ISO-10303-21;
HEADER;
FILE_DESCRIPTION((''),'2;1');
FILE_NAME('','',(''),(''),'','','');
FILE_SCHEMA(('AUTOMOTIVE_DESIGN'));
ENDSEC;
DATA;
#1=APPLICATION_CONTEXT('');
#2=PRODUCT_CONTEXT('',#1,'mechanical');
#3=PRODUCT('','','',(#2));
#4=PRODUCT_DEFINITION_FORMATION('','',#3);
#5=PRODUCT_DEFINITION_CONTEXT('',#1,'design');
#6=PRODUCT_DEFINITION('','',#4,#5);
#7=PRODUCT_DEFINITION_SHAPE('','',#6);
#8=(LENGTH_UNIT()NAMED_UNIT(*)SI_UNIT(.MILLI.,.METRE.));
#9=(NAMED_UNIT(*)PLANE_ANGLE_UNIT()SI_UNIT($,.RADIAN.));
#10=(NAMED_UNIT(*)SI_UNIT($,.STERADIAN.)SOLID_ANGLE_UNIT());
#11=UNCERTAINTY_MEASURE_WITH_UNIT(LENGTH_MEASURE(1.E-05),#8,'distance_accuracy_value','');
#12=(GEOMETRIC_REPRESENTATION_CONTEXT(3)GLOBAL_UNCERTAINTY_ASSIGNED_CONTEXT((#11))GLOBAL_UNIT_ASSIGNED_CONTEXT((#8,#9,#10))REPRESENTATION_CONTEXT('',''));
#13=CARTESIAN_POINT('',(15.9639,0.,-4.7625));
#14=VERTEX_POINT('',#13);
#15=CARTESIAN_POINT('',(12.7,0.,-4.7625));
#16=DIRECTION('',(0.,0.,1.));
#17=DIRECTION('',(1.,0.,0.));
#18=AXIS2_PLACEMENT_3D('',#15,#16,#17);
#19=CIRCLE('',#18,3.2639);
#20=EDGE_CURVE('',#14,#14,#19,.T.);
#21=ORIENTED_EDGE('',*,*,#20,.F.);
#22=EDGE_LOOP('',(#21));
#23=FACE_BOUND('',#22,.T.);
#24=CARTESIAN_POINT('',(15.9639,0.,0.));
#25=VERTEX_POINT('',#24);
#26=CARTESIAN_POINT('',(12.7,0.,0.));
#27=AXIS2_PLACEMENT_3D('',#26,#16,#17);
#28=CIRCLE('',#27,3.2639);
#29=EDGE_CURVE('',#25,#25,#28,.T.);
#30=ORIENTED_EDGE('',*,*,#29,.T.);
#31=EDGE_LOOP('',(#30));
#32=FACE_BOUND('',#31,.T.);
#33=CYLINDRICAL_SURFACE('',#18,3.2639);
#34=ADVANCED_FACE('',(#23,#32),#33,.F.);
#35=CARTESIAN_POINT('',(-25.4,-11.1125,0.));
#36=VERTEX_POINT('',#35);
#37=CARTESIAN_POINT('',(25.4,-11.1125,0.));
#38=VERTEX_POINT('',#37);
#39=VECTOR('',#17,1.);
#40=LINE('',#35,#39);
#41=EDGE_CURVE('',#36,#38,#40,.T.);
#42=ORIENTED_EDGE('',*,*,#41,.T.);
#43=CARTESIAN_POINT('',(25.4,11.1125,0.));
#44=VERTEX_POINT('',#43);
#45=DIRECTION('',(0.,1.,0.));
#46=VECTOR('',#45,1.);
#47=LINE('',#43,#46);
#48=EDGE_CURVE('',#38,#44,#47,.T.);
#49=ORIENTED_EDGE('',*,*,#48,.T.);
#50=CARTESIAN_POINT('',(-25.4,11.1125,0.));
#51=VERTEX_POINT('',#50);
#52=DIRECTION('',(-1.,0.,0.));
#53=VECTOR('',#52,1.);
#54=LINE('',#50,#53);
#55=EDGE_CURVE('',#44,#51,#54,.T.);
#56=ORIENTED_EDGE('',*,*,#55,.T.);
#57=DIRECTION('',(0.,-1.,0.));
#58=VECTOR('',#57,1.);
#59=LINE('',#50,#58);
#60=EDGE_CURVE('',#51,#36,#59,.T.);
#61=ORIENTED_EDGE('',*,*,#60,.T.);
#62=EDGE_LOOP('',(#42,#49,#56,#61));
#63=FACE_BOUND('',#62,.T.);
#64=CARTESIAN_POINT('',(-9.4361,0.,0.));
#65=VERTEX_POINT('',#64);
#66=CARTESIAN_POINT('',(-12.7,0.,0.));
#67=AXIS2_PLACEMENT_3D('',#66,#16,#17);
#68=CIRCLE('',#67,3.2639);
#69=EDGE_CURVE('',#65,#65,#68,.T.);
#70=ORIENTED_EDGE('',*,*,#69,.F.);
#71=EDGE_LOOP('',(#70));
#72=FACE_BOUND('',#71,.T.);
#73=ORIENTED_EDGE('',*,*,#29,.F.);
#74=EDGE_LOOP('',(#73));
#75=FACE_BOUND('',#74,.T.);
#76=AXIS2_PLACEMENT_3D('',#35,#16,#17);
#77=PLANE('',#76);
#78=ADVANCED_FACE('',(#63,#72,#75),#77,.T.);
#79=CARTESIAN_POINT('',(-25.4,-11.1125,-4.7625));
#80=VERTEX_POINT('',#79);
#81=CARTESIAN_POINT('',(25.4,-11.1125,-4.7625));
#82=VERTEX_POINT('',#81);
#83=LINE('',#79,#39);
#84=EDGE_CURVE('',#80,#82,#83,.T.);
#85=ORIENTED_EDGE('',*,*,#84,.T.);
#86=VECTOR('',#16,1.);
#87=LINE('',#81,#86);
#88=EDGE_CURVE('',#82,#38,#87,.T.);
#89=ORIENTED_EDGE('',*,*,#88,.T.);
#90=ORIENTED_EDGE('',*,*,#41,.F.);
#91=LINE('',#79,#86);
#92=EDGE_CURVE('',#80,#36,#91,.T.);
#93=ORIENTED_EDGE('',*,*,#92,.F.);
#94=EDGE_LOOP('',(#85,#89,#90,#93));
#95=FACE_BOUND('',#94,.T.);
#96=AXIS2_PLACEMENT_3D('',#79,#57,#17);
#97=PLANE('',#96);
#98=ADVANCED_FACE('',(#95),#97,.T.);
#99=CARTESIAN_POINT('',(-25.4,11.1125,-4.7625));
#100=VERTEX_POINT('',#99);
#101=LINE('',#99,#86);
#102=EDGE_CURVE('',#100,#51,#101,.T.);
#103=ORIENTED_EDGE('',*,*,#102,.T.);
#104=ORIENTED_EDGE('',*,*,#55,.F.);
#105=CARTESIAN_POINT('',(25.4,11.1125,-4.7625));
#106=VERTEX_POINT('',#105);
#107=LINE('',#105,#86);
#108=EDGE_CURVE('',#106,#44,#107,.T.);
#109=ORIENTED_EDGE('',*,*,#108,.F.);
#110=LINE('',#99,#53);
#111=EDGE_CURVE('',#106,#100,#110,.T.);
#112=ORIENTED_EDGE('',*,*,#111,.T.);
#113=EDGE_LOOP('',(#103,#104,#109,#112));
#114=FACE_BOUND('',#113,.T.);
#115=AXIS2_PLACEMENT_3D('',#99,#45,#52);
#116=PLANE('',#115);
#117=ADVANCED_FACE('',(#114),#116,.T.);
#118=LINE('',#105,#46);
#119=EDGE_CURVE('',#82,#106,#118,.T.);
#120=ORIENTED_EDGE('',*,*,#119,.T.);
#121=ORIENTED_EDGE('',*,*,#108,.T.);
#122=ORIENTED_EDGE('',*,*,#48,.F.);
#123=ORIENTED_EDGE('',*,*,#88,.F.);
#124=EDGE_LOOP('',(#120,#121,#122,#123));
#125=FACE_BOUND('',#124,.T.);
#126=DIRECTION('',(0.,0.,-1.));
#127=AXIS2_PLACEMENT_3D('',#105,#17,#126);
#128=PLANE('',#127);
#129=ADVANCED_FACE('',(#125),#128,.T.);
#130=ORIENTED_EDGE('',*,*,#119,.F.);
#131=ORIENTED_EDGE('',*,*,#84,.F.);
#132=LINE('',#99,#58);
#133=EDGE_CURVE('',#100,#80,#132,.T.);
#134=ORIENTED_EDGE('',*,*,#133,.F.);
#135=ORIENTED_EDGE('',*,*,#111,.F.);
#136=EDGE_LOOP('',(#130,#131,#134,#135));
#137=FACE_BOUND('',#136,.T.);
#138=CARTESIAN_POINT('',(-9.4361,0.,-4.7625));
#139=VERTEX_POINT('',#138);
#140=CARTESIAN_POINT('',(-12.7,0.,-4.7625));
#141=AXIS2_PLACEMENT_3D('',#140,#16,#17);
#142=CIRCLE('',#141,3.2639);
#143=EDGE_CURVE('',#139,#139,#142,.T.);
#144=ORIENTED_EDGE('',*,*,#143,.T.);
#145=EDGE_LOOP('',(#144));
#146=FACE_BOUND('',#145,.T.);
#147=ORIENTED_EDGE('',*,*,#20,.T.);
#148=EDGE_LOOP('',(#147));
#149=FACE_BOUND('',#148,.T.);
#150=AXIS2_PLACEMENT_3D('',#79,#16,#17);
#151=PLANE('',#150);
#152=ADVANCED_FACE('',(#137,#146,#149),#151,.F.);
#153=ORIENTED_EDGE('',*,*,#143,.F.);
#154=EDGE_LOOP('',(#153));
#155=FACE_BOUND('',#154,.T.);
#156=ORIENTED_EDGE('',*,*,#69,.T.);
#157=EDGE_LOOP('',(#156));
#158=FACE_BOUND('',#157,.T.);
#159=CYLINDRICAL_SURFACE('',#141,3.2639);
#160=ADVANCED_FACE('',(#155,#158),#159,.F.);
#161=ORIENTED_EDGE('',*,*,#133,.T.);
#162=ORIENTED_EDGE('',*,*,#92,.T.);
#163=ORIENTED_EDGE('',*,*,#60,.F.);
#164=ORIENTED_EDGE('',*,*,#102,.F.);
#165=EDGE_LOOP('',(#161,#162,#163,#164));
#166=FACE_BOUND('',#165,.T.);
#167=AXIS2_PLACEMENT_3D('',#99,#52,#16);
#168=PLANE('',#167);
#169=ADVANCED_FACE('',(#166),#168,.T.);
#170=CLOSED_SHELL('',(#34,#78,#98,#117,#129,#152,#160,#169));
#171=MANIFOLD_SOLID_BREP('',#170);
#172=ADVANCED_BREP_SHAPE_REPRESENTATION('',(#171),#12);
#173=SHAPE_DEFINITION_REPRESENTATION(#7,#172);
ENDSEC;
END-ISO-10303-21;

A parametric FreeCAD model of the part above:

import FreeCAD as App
import Part
import Sketcher
from FreeCAD import Vector
Q = App.Units.Quantity


def add_polygon(sketch, points):
    """Adds a closed chain of lines whose ends are joined by coincident constraints."""
    first, n = sketch.GeometryCount, len(points)
    for a, b in zip(points, points[1:] + points[:1]):
        sketch.addGeometry(Part.LineSegment(App.Vector(*a, 0), App.Vector(*b, 0)), False)
    for i in range(n):
        sketch.addConstraint(Sketcher.Constraint("Coincident", first + i, 2, first + (i + 1) % n, 1))

doc = App.newDocument("Part")
body = doc.addObject("PartDesign::Body", "Body")

sketch1 = doc.addObject("Sketcher::SketchObject", "Sketch")
body.addObject(sketch1)
sketch1.AttachmentSupport = (doc.XY_Plane, [""])
sketch1.MapMode = "FlatFace"
add_polygon(sketch1, [(-25.4, 11.1), (-25.4, -11.1), (25.4, -11.1), (25.4, 11.1)])
sketch1.addGeometry(Part.Circle(Vector(-12.7, 0, 0), Vector(0, 0, 1), 3.3), False)
sketch1.addGeometry(Part.Circle(Vector(12.7, 0, 0), Vector(0, 0, 1), 3.3), False)
sketch1.addConstraint(Sketcher.Constraint("Vertical", 0))
sketch1.addConstraint(Sketcher.Constraint("Horizontal", 1))
sketch1.addConstraint(Sketcher.Constraint("Vertical", 2))
sketch1.addConstraint(Sketcher.Constraint("Horizontal", 3))
sketch1.addConstraint(Sketcher.Constraint("Equal", 4, 5))
sketch1.addConstraint(Sketcher.Constraint("Symmetric", 4, 3, 5, 3, -1, 1))
sketch1.addConstraint(Sketcher.Constraint("Symmetric", 0, 2, 2, 2, -1, 1))
sketch1.addConstraint(Sketcher.Constraint("PointOnObject", 4, 3, -1))
sketch1.addConstraint(Sketcher.Constraint("DistanceX", 1, 1, 1, 2, Q("2 in")))
sketch1.addConstraint(Sketcher.Constraint("Diameter", 4, Q("0.257 in")))
sketch1.addConstraint(Sketcher.Constraint("DistanceX", 4, 3, 5, 3, Q("1 in")))
sketch1.addConstraint(Sketcher.Constraint("DistanceY", 0, 2, 0, 1, Q("0.875 in")))
pad1 = doc.addObject("PartDesign::Pad", "Pad")
body.addObject(pad1)
pad1.Profile = sketch1
pad1.Length = Q("0.1875 in")
pad1.Reversed = True

doc.recompute()
